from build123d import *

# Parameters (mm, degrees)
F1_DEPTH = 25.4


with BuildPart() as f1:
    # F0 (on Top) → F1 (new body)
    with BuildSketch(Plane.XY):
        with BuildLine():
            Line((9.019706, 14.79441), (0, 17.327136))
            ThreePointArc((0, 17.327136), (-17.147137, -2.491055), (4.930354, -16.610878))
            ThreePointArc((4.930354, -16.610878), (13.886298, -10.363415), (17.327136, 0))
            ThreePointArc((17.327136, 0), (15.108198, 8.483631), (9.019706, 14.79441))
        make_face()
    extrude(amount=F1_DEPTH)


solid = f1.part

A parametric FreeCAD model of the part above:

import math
import FreeCAD as App
import Part
import Sketcher
Q = App.Units.Quantity

doc = App.newDocument("Part")
body = doc.addObject("PartDesign::Body", "Body")

# Sketch on XY plane
sketch1 = doc.addObject("Sketcher::SketchObject", "Sketch")
body.addObject(sketch1)
sketch1.AttachmentSupport = (doc.XY_Plane, [""])
sketch1.MapMode = "FlatFace"
sketch1.addGeometry(Part.LineSegment(App.Vector(9, 15, 0), App.Vector(0, 17, 0)), False)
sketch1.addGeometry(Part.ArcOfCircle(Part.Circle(App.Vector(0, 0, 0), App.Vector(0, 0, 1), 17), math.radians(90), math.radians(287)), False)
sketch1.addGeometry(Part.ArcOfCircle(Part.Circle(App.Vector(0, 0, 0), App.Vector(0, 0, 1), 17), math.radians(-73), math.radians(0)), False)
sketch1.addGeometry(Part.ArcOfCircle(Part.Circle(App.Vector(0, 0, 0), App.Vector(0, 0, 1), 17), math.radians(0), math.radians(59)), False)
sketch1.addConstraint(Sketcher.Constraint("Coincident", 0, 2, 1, 1))
sketch1.addConstraint(Sketcher.Constraint("Tangent", 1, 2, 2, 1))
sketch1.addConstraint(Sketcher.Constraint("Tangent", 2, 2, 3, 1))
sketch1.addConstraint(Sketcher.Constraint("Coincident", 3, 2, 0, 1))
sketch1.addConstraint(Sketcher.Constraint("Coincident", 1, 3, -1, 1))
sketch1.addConstraint(Sketcher.Constraint("Coincident", 3, 3, -1, 1))
sketch1.addConstraint(Sketcher.Constraint("PointOnObject", 0, 2, -2))
sketch1.addConstraint(Sketcher.Constraint("PointOnObject", 2, 2, -1))
sketch1.addConstraint(Sketcher.Constraint("Radius", 3, Q("17.327138 mm")))
sketch1.addConstraint(Sketcher.Constraint("DistanceY", -1, 1, 3, 2, Q("14.79441 mm")))
sketch1.addConstraint(Sketcher.Constraint("DistanceY", 1, 2, 2, 3, Q("16.610878 mm")))
pad1 = doc.addObject("PartDesign::Pad", "Pad")
body.addObject(pad1)
pad1.Profile = sketch1
pad1.Length = Q("1 in")

doc.recompute()
